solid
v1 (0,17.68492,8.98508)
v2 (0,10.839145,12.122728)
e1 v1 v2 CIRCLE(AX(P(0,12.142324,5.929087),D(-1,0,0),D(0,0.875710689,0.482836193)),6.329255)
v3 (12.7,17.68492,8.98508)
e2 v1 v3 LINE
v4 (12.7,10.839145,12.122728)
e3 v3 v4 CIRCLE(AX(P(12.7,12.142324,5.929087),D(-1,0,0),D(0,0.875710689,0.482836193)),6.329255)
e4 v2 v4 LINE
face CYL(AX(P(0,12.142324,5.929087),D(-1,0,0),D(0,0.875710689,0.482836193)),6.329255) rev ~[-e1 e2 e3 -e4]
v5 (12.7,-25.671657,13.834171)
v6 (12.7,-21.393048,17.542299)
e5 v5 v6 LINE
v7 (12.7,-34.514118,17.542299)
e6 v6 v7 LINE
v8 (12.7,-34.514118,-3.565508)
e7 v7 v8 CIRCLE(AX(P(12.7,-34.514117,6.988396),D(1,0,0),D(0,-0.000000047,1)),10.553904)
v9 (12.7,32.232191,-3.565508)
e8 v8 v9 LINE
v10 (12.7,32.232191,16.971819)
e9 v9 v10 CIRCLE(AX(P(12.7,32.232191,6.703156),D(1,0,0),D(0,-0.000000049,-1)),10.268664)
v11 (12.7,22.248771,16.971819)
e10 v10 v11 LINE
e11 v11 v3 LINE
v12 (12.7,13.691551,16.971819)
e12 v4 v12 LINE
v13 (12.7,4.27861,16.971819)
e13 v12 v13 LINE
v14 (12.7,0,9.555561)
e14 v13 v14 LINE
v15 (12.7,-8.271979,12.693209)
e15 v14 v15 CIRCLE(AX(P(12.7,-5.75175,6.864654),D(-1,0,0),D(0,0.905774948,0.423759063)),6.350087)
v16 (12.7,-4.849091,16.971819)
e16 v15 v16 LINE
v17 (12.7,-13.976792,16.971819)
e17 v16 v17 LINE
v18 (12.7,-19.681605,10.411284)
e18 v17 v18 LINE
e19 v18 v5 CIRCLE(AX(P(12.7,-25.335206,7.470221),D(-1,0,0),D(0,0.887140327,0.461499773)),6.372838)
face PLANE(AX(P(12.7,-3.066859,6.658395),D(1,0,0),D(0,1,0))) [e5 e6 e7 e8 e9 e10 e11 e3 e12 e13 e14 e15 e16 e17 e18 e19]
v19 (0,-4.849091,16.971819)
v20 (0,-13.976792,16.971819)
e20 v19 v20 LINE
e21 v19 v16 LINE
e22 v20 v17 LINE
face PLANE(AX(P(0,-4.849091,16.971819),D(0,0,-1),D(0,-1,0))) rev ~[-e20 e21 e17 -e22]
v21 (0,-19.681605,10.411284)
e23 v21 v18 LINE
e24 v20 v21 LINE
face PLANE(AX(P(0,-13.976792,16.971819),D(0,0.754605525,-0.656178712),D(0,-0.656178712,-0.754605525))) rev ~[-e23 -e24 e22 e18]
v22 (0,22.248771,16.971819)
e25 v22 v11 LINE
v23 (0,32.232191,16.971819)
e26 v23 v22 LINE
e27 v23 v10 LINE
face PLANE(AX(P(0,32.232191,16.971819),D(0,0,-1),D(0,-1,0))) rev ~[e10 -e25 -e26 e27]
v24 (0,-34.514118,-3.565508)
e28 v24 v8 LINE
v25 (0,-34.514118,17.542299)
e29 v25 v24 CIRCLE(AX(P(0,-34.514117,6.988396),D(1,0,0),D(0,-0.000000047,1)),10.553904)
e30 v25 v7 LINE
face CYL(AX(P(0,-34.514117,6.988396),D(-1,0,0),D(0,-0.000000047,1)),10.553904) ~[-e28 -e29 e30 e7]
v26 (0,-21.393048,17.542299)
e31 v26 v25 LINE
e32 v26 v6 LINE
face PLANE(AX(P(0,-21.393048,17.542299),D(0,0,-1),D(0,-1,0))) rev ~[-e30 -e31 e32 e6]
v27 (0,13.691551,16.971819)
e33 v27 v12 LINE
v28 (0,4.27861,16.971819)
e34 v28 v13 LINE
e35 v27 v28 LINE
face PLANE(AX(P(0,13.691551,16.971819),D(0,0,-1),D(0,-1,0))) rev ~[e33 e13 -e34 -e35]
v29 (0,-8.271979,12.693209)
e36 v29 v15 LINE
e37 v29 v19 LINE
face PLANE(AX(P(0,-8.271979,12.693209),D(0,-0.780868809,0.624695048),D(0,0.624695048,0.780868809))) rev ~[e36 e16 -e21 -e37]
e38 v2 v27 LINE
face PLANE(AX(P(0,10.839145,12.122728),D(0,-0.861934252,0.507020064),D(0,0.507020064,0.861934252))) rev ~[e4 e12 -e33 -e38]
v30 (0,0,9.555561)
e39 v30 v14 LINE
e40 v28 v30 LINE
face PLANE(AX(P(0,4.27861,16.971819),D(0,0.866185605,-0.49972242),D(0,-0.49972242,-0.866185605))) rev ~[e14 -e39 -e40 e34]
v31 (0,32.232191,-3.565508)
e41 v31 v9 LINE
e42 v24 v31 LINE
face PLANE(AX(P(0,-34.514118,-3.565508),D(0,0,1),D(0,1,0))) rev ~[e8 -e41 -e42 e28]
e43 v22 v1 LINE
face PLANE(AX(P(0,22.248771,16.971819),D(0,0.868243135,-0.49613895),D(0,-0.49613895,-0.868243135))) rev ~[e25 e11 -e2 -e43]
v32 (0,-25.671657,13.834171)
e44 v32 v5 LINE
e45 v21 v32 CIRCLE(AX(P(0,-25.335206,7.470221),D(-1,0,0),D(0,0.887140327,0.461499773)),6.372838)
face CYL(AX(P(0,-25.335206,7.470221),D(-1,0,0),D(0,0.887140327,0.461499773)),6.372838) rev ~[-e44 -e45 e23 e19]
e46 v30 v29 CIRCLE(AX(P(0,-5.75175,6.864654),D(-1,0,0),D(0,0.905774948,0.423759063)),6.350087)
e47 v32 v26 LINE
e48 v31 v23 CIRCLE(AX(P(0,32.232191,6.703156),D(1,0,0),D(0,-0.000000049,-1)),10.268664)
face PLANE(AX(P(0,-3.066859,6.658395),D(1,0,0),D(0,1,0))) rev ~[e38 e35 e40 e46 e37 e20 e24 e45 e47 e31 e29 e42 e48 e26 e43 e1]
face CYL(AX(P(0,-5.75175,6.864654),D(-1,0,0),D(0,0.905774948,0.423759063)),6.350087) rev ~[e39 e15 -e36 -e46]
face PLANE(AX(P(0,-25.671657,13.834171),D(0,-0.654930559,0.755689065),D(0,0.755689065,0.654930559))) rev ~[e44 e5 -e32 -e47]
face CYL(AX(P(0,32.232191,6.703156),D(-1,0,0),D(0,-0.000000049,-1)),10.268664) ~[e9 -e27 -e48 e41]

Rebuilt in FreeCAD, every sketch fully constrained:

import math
import FreeCAD as App
import Part
import Sketcher
from FreeCAD import Vector
Q = App.Units.Quantity

doc = App.newDocument("Part")
body = doc.addObject("PartDesign::Body", "Body")

sketch1 = body.newObject("Sketcher::SketchObject", "Sketch")
sketch1.AttachmentSupport = (doc.getObject("YZ_Plane"), [""])
sketch1.MapMode = "FlatFace"
sketch1.addGeometry([
    Part.LineSegment(Vector(-21, 18, 0), Vector(-35, 18, 0)),
    Part.ArcOfCircle(Part.Circle(Vector(-35, 7, 0), Vector(0, 0, 1), 11), math.radians(90), math.radians(270)),
    Part.LineSegment(Vector(-35, -4, 0), Vector(32, -4, 0)),
    Part.ArcOfCircle(Part.Circle(Vector(32, 7, 0), Vector(0, 0, 1), 10), math.radians(-90), math.radians(90)),
    Part.LineSegment(Vector(32, 17, 0), Vector(22, 17, 0)),
    Part.LineSegment(Vector(22, 17, 0), Vector(18, 9, 0)),
    Part.ArcOfCircle(Part.Circle(Vector(12, 6, 0), Vector(0, 0, 1), 6), math.radians(102), math.radians(389)),
    Part.LineSegment(Vector(11, 12, 0), Vector(14, 17, 0)),
    Part.LineSegment(Vector(14, 17, 0), Vector(4, 17, 0)),
    Part.LineSegment(Vector(4, 17, 0), Vector(0, 10, 0)),
    Part.ArcOfCircle(Part.Circle(Vector(-6, 7, 0), Vector(0, 0, 1), 6), math.radians(113), math.radians(385)),
    Part.LineSegment(Vector(-8, 13, 0), Vector(-5, 17, 0)),
    Part.LineSegment(Vector(-5, 17, 0), Vector(-14, 17, 0)),
    Part.LineSegment(Vector(-14, 17, 0), Vector(-20, 10, 0)),
    Part.ArcOfCircle(Part.Circle(Vector(-25, 7, 0), Vector(0, 0, 1), 6), math.radians(93), math.radians(387)),
    Part.LineSegment(Vector(-26, 14, 0), Vector(-21, 18, 0)),
], False)
sketch1.addConstraint([
    Sketcher.Constraint("Tangent", 0, 2, 1, 1),
    Sketcher.Constraint("Tangent", 1, 2, 2, 1),
    Sketcher.Constraint("Tangent", 2, 2, 3, 1),
    Sketcher.Constraint("Tangent", 3, 2, 4, 1),
    Sketcher.Constraint("Coincident", 4, 2, 5, 1),
    Sketcher.Constraint("Coincident", 5, 2, 6, 2),
    Sketcher.Constraint("Coincident", 6, 1, 7, 1),
    Sketcher.Constraint("Coincident", 7, 2, 8, 1),
    Sketcher.Constraint("Coincident", 8, 2, 9, 1),
    Sketcher.Constraint("Coincident", 9, 2, 10, 2),
    Sketcher.Constraint("Coincident", 10, 1, 11, 1),
    Sketcher.Constraint("Coincident", 11, 2, 12, 1),
    Sketcher.Constraint("Coincident", 12, 2, 13, 1),
    Sketcher.Constraint("Coincident", 13, 2, 14, 2),
    Sketcher.Constraint("Coincident", 14, 1, 15, 1),
    Sketcher.Constraint("Coincident", 15, 2, 0, 1),
    Sketcher.Constraint("Horizontal", 0),
    Sketcher.Constraint("Horizontal", 2),
    Sketcher.Constraint("Horizontal", 4),
    Sketcher.Constraint("Horizontal", 8),
    Sketcher.Constraint("Horizontal", 12),
    Sketcher.Constraint("PointOnObject", 9, 2, -2),
    Sketcher.Constraint("Horizontal", 4, 2, 7, 2),
    Sketcher.Constraint("Horizontal", 8, 2, 11, 2),
    Sketcher.Constraint("DistanceX", 12, 2, 12, 1, 9.127701),
    Sketcher.Constraint("Radius", 1, 10.553904),
    Sketcher.Constraint("Radius", 3, 10.268664),
    Sketcher.Constraint("Radius", 6, 6.329255),
    Sketcher.Constraint("Radius", 10, 6.350087),
    Sketcher.Constraint("Radius", 14, 6.372838),
    Sketcher.Constraint("DistanceX", 0, 2, 0, 1, 13.12107),
    Sketcher.Constraint("DistanceX", 2, 1, 2, 2, 66.746309),
    Sketcher.Constraint("DistanceX", 4, 2, 4, 1, 9.98342),
    Sketcher.Constraint("DistanceX", 8, 2, 8, 1, 9.412941),
    Sketcher.Constraint("DistanceY", -1, 1, 0, 2, 17.542299),
    Sketcher.Constraint("DistanceY", 3, 3, 10, 3, 0.161498),
    Sketcher.Constraint("DistanceY", 14, 3, 3, 2, 9.501598),
    Sketcher.Constraint("DistanceX", 11, 2, 8, 2, 9.127701),
    Sketcher.Constraint("DistanceX", 14, 3, 13, 2, 5.653601),
    Sketcher.Constraint("DistanceX", -1, 1, 3, 3, 32.232191),
    Sketcher.Constraint("DistanceX", 10, 3, -1, 1, 5.75175),
    Sketcher.Constraint("DistanceX", -1, 1, 5, 2, 17.68492),
    Sketcher.Constraint("DistanceY", -1, 1, 5, 2, 8.98508),
    Sketcher.Constraint("DistanceY", -1, 1, 6, 1, 12.122728),
    Sketcher.Constraint("DistanceX", -1, 1, 7, 2, 13.691551),
    Sketcher.Constraint("DistanceX", 10, 1, -1, 1, 8.271979),
    Sketcher.Constraint("DistanceY", -1, 1, 14, 1, 13.834171),
    Sketcher.Constraint("DistanceY", 6, 3, 3, 3, 0.774069),
    Sketcher.Constraint("DistanceX", 1, 3, 14, 3, 9.178911),
])
pad1 = body.newObject("PartDesign::Pad", "Pad")
pad1.Profile = sketch1
pad1.Length = Q("0.5 in")

doc.recompute()
